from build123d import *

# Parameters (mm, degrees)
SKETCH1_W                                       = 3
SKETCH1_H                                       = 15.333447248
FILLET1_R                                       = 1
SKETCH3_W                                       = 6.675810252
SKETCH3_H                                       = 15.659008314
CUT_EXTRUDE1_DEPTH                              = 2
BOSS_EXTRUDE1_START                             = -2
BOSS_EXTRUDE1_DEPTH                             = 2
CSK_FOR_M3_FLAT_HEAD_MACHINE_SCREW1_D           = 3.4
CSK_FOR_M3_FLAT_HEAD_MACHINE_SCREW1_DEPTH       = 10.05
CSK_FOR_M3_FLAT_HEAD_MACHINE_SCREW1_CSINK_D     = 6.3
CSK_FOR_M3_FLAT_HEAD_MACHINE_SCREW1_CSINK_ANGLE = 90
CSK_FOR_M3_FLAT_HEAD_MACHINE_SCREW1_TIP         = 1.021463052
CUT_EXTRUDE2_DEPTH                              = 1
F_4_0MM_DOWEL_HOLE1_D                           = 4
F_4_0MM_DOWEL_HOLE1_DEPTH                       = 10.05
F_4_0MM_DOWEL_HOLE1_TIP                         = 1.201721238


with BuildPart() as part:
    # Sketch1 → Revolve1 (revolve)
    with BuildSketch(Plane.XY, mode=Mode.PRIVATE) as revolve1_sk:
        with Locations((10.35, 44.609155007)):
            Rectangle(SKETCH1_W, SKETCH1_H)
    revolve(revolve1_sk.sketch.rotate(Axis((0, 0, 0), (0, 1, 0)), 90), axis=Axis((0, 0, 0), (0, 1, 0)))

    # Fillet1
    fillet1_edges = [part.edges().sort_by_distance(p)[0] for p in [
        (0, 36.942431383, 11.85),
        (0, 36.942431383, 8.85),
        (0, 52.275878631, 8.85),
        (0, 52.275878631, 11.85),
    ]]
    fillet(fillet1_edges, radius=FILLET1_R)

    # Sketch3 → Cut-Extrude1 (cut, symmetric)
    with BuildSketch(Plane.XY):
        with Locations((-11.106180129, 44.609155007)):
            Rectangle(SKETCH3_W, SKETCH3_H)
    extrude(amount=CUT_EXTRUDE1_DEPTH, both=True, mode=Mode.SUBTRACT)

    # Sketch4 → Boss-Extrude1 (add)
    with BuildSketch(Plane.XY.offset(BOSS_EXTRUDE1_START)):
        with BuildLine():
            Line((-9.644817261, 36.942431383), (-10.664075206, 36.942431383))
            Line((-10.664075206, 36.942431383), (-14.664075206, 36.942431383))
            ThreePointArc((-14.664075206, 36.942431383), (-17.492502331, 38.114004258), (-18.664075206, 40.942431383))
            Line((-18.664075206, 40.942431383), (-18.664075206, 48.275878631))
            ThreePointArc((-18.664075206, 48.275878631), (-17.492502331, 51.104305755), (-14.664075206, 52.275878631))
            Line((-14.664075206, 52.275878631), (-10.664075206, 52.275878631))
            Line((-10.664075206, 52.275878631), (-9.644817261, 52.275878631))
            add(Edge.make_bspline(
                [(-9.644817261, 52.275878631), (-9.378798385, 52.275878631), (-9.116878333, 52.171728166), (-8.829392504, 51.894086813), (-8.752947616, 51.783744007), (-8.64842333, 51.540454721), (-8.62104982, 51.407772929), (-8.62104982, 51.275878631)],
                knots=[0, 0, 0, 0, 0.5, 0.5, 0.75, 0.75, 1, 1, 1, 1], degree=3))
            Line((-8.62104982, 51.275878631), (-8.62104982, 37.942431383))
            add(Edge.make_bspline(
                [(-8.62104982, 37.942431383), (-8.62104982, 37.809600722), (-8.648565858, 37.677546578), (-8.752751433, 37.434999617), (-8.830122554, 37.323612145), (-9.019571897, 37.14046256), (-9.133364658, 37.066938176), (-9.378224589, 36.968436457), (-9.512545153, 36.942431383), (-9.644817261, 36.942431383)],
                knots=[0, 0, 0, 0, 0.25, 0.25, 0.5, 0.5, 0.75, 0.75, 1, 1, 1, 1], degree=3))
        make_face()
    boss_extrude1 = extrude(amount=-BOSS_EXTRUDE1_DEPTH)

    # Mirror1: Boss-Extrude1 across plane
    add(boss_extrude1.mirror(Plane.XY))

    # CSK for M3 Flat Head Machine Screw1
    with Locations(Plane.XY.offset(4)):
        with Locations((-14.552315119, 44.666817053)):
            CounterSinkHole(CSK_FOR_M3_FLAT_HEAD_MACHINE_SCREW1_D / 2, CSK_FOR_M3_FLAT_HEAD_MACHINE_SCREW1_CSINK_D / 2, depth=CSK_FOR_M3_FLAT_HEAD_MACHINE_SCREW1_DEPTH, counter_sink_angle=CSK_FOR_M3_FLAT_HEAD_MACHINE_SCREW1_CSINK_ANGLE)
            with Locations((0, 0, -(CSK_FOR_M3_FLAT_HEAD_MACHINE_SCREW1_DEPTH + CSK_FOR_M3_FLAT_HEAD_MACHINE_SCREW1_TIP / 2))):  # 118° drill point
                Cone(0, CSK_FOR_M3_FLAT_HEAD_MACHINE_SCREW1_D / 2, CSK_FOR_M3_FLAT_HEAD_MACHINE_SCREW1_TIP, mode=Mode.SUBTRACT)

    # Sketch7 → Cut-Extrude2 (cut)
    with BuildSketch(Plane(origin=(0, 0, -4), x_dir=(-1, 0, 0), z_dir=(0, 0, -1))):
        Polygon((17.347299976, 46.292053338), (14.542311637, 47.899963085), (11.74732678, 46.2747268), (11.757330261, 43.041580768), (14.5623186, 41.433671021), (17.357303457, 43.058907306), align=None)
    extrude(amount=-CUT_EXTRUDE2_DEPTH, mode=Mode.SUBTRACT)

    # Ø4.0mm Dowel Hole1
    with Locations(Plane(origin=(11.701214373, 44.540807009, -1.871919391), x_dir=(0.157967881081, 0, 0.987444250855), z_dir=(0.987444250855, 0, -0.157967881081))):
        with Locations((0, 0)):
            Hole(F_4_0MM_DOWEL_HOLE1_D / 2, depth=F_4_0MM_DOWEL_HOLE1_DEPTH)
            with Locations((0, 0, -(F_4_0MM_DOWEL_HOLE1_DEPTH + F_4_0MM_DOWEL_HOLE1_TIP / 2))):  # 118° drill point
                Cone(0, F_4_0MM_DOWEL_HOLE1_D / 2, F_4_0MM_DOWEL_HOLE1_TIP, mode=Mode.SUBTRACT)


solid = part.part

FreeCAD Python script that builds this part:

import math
import FreeCAD as App
import Part
import Sketcher

V = App.Vector


def edges_at(feature, points):
    """Names of the edges that pass closest to the given points."""
    edges = feature.Shape.Edges
    near = lambda p: min(range(len(edges)), key=lambda i: edges[i].distToShape(Part.Vertex(*p))[0])
    return sorted({f"Edge{near(p) + 1}" for p in points})


def add_polygon(sketch, points):
    """Adds a closed chain of lines whose ends are joined by coincident constraints."""
    first, n = sketch.GeometryCount, len(points)
    for a, b in zip(points, points[1:] + points[:1]):
        sketch.addGeometry(Part.LineSegment(App.Vector(*a, 0), App.Vector(*b, 0)), False)
    for i in range(n):
        sketch.addConstraint(Sketcher.Constraint("Coincident", first + i, 2, first + (i + 1) % n, 1))

doc = App.newDocument("Part")
body = doc.addObject("PartDesign::Body", "Body")

sketch1 = doc.addObject("Sketcher::SketchObject", "Sketch")
body.addObject(sketch1)
sketch1.AttachmentSupport = (doc.XY_Plane, [""])
sketch1.MapMode = "FlatFace"
add_polygon(sketch1, [(8.85, 52.275879), (8.85, 36.942431), (11.85, 36.942431), (11.85, 52.275879)])
sketch1.addConstraint([
    Sketcher.Constraint("Vertical", 0),
    Sketcher.Constraint("Horizontal", 1),
    Sketcher.Constraint("Vertical", 2),
    Sketcher.Constraint("Horizontal", 3),
    Sketcher.Constraint("DistanceX", 1, 1, 1, 2, 3.0),
    Sketcher.Constraint("DistanceX", -1, 1, 0, 2, 8.85),
    Sketcher.Constraint("DistanceY", 0, 2, 0, 1, 15.333447),
    Sketcher.Constraint("DistanceY", -1, 1, 0, 2, 36.942431),
])
revolution = doc.addObject("PartDesign::Revolution", "Revolution")
body.addObject(revolution)
revolution.Profile = sketch1
revolution.ReferenceAxis = (sketch1, ["V_Axis"])
revolution.Angle = 360
doc.recompute()

fillet = doc.addObject("PartDesign::Fillet", "Fillet")
body.addObject(fillet)
fillet.Base = (revolution, edges_at(revolution, [
    (0, 36.942, 11.85),
    (0, 36.942, 8.85),
    (0, 52.276, 8.85),
    (0, 52.276, 11.85),
]))
fillet.Radius = 1

sketch2 = doc.addObject("Sketcher::SketchObject", "Sketch001")
body.addObject(sketch2)
sketch2.AttachmentSupport = (doc.XY_Plane, [""])
sketch2.MapMode = "FlatFace"
add_polygon(sketch2, [(-14.444085, 52.438659), (-14.444085, 36.779651), (-7.768275, 36.779651), (-7.768275, 52.438659)])
sketch2.addConstraint([
    Sketcher.Constraint("Vertical", 0),
    Sketcher.Constraint("Horizontal", 1),
    Sketcher.Constraint("Vertical", 2),
    Sketcher.Constraint("Horizontal", 3),
    Sketcher.Constraint("DistanceX", 1, 1, 1, 2, 6.67581),
    Sketcher.Constraint("DistanceY", 0, 2, 0, 1, 15.659008),
    Sketcher.Constraint("DistanceY", -1, 1, 0, 2, 36.779651),
    Sketcher.Constraint("DistanceX", 0, 2, -1, 1, 14.444085),
])
pocket1 = doc.addObject("PartDesign::Pocket", "Pocket")
body.addObject(pocket1)
pocket1.Profile = sketch2
pocket1.Length = 4
pocket1.Midplane = True

sketch3 = doc.addObject("Sketcher::SketchObject", "Sketch002")
body.addObject(sketch3)
sketch3.AttachmentSupport = (doc.XY_Plane, [""])
sketch3.MapMode = "FlatFace"
sketch3.AttachmentOffset = App.Placement(V(0, 0, -2), App.Rotation())
sketch3.addGeometry([
    Part.LineSegment(V(-14.664075, 36.942431, 0), V(-9.644817, 36.942431, 0)),
    Part.BSplineCurve([V(-8.62105, 37.942431, 0), V(-8.62105, 37.809601, 0), V(-8.648566, 37.677547, 0), V(-8.752751, 37.435, 0), V(-8.830123, 37.323612, 0), V(-9.019572, 37.140463, 0), V(-9.133365, 37.066938, 0), V(-9.378225, 36.968436, 0), V(-9.512545, 36.942431, 0), V(-9.644817, 36.942431, 0)], [4, 2, 2, 2, 4], [0, 0.25, 0.5, 0.75, 1], False, 3, [1, 1, 1, 1, 1, 1, 1, 1, 1, 1], False),
    Part.LineSegment(V(-8.62105, 37.942431, 0), V(-8.62105, 51.275879, 0)),
    Part.BSplineCurve([V(-9.644817, 52.275879, 0), V(-9.378798, 52.275879, 0), V(-9.116878, 52.171728, 0), V(-8.829393, 51.894087, 0), V(-8.752948, 51.783744, 0), V(-8.648423, 51.540455, 0), V(-8.62105, 51.407773, 0), V(-8.62105, 51.275879, 0)], [4, 2, 2, 4], [0, 0.5, 0.75, 1], False, 3, [1, 1, 1, 1, 1, 1, 1, 1], False),
    Part.LineSegment(V(-9.644817, 52.275879, 0), V(-14.664075, 52.275879, 0)),
    Part.ArcOfCircle(Part.Circle(V(-14.664075, 48.275879, 0), V(0, 0, 1), 4), math.radians(90), math.radians(180)),
    Part.LineSegment(V(-18.664075, 48.275879, 0), V(-18.664075, 40.942431, 0)),
    Part.ArcOfCircle(Part.Circle(V(-14.664075, 40.942431, 0), V(0, 0, 1), 4), math.radians(180), math.radians(270)),
], False)
sketch3.addConstraint([
    Sketcher.Constraint("Block", 1),
    Sketcher.Constraint("Block", 3),
    Sketcher.Constraint("Coincident", 0, 2, 1, 2),
    Sketcher.Constraint("Coincident", 1, 1, 2, 1),
    Sketcher.Constraint("Coincident", 2, 2, 3, 2),
    Sketcher.Constraint("Coincident", 3, 1, 4, 1),
    Sketcher.Constraint("Tangent", 4, 2, 5, 1),
    Sketcher.Constraint("Tangent", 5, 2, 6, 1),
    Sketcher.Constraint("Tangent", 6, 2, 7, 1),
    Sketcher.Constraint("Tangent", 7, 2, 0, 1),
    Sketcher.Constraint("Horizontal", 0),
    Sketcher.Constraint("Horizontal", 4),
    Sketcher.Constraint("Vertical", 6),
    Sketcher.Constraint("Equal", 5, 7),
    Sketcher.Constraint("Radius", 5, 4.0),
    Sketcher.Constraint("DistanceX", 0, 1, 0, 2, 5.019258),
])
pad1 = doc.addObject("PartDesign::Pad", "Pad")
body.addObject(pad1)
pad1.Profile = sketch3
pad1.Length = 2
pad1.Reversed = True
doc.recompute()

mirrored = doc.addObject("PartDesign::Mirrored", "Mirrored")
body.addObject(mirrored)
mirrored.Originals = [pad1]
mirrored.MirrorPlane = (doc.XY_Plane, [""])
body.Tip = mirrored

sketch4 = doc.addObject("Sketcher::SketchObject", "Sketch003")
body.addObject(sketch4)
sketch4.AttachmentSupport = (doc.XY_Plane, [""])
sketch4.MapMode = "FlatFace"
sketch4.AttachmentOffset = App.Placement(V(0, 0, 4), App.Rotation())
sketch4.addGeometry(Part.Circle(V(-14.552315, 44.666817, 0), V(0, 0, 1), 1.7), False)
sketch4.addConstraint([
    Sketcher.Constraint("Diameter", 0, 3.4),
    Sketcher.Constraint("DistanceX", 0, 3, -1, 1, 14.552315),
    Sketcher.Constraint("DistanceY", -1, 1, 0, 3, 44.666817),
])
doc.recompute()
hole = doc.addObject("PartDesign::Hole", "Hole")
body.addObject(hole)
hole.Profile = sketch4
hole.ThreadType = "None"
hole.Diameter = 3.4
hole.DepthType = "Dimension"
hole.Depth = 10.05
hole.DrillPoint = "Angled"
hole.DrillPointAngle = 118
hole.HoleCutType = "Countersink"
hole.HoleCutDiameter = 6.3
hole.HoleCutCountersinkAngle = 90

sketch5 = doc.addObject("Sketcher::SketchObject", "Sketch004")
body.addObject(sketch5)
sketch5.AttachmentSupport = (doc.XY_Plane, [""])
sketch5.MapMode = "FlatFace"
sketch5.AttachmentOffset = App.Placement(V(0, 0, -4), App.Rotation())
add_polygon(sketch5, [(-17.3473, 46.292053), (-14.542312, 47.899963), (-11.747327, 46.274727), (-11.75733, 43.041581), (-14.562319, 41.433671), (-17.357303, 43.058907)])
sketch5.addConstraint([
    Sketcher.Constraint("Parallel", 0, 3),
    Sketcher.Constraint("Parallel", 1, 4),
    Sketcher.Constraint("Parallel", 2, 5),
    Sketcher.Constraint("Equal", 0, 1),
    Sketcher.Constraint("Equal", 1, 2),
    Sketcher.Constraint("Equal", 2, 3),
    Sketcher.Constraint("DistanceX", 5, 2, -1, 1, 17.3473),
    Sketcher.Constraint("Distance", 0, 3.233162),
    Sketcher.Constraint("DistanceX", 0, 2, -1, 1, 14.542312),
    Sketcher.Constraint("DistanceX", 2, 2, -1, 1, 11.75733),
    Sketcher.Constraint("DistanceY", -1, 1, 2, 2, 43.041581),
    Sketcher.Constraint("DistanceX", 3, 2, 1, 2, 2.814992),
])
pocket2 = doc.addObject("PartDesign::Pocket", "Pocket001")
body.addObject(pocket2)
pocket2.Profile = sketch5
pocket2.Length = 1
pocket2.Reversed = True

sketch6 = doc.addObject("Sketcher::SketchObject", "Sketch005")
body.addObject(sketch6)
sketch6.Placement = App.Placement(V(11.701214, 0, -1.871919), App.Rotation(V(0.157967881, 0, 0.987444251), V(0, -1, 0), V(0.987444251, 0, -0.157967881), "ZXY"))
sketch6.addGeometry(Part.Circle(V(0, -44.540807, 0), V(0, 0, 1), 2), False)
sketch6.addConstraint([
    Sketcher.Constraint("PointOnObject", 0, 3, -2),
    Sketcher.Constraint("Diameter", 0, 4.0),
    Sketcher.Constraint("DistanceY", 0, 3, -1, 1, 44.540807),
])
doc.recompute()
hole2 = doc.addObject("PartDesign::Hole", "Hole001")
body.addObject(hole2)
hole2.Profile = sketch6
hole2.ThreadType = "None"
hole2.Diameter = 4
hole2.DepthType = "Dimension"
hole2.Depth = 10.05
hole2.DrillPoint = "Angled"
hole2.DrillPointAngle = 118

doc.recompute()
